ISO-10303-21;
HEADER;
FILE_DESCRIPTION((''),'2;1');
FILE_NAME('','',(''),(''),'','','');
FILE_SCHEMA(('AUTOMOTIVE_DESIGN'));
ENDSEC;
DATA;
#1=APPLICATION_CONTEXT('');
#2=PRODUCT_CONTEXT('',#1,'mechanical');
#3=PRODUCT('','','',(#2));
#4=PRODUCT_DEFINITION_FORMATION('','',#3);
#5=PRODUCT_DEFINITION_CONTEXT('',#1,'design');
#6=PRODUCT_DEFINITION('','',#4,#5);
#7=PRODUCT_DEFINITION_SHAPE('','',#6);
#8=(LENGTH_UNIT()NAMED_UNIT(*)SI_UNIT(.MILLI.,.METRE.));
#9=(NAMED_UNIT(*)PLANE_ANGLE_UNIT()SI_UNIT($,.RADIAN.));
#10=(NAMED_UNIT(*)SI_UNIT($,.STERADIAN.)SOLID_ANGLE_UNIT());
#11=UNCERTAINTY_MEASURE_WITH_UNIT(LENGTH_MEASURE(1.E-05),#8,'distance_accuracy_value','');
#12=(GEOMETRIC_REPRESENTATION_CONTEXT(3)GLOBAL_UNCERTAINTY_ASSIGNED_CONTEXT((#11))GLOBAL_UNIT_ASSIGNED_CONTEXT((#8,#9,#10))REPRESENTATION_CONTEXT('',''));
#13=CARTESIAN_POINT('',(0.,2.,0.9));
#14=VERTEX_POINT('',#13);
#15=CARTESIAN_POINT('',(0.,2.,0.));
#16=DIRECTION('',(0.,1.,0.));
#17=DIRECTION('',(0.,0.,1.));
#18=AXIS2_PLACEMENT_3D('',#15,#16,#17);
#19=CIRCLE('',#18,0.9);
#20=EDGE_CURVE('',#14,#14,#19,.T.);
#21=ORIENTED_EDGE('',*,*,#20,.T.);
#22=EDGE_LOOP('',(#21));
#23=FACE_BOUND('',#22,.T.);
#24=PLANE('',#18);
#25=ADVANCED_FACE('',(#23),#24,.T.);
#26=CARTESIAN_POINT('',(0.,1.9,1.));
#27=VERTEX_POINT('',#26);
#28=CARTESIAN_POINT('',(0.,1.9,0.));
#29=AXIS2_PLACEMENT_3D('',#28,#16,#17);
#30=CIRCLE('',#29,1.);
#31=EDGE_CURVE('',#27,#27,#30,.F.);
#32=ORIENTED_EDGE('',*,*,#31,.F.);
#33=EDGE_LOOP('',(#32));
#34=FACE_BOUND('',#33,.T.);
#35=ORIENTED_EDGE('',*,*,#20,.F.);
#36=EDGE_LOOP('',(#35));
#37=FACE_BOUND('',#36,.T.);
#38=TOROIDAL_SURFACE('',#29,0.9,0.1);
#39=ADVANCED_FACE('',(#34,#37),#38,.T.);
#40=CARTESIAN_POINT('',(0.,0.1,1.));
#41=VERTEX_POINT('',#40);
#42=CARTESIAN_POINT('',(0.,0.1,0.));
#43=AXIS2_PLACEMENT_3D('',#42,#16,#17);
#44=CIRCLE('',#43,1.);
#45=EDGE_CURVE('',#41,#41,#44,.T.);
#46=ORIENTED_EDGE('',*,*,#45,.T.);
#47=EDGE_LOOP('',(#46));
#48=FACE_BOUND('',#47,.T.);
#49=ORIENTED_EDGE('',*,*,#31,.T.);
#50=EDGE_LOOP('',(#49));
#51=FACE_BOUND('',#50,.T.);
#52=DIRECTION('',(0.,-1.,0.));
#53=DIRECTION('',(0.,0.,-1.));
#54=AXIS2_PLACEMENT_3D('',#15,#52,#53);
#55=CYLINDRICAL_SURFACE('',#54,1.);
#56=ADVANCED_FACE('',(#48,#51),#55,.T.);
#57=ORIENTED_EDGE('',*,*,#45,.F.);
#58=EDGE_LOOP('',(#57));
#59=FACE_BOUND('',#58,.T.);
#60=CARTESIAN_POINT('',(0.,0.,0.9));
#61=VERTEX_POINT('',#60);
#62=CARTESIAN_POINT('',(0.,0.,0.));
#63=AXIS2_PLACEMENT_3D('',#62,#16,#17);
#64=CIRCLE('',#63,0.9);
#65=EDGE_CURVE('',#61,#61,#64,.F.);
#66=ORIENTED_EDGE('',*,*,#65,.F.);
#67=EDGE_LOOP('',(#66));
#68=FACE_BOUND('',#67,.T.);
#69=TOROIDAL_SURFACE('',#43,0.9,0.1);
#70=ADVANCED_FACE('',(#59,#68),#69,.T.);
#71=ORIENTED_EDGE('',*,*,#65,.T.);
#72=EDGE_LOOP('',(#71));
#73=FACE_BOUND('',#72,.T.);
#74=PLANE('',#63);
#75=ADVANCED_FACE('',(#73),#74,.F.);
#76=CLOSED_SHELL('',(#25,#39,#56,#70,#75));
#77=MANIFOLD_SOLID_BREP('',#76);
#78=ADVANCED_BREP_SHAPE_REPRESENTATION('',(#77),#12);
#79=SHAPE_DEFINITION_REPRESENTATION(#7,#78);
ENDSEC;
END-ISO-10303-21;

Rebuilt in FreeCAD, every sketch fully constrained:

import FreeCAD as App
import Part
import Sketcher


def edges_at(feature, points):
    """Names of the edges that pass closest to the given points."""
    edges = feature.Shape.Edges
    near = lambda p: min(range(len(edges)), key=lambda i: edges[i].distToShape(Part.Vertex(*p))[0])
    return sorted({f"Edge{near(p) + 1}" for p in points})

doc = App.newDocument("Part")
params = doc.addObject("Spreadsheet::Sheet", "Params")
for row, (alias, value) in enumerate([
    ("sketch1_diameter", "2 mm"),
    ("pad1_length", "2 mm"),
    ("fillet_radius", "0.1 mm"),
], start=1):
    params.set(f"A{row}", alias)
    params.set(f"B{row}", "=" + value)
    params.setAlias(f"B{row}", alias)

body = doc.addObject("PartDesign::Body", "Body")

sketch1 = body.newObject("Sketcher::SketchObject", "Sketch")
sketch1.AttachmentSupport = (doc.getObject("XZ_Plane"), [""])
sketch1.MapMode = "FlatFace"
sketch1.addGeometry(Part.Circle(App.Vector(0, 0, 0), App.Vector(0, 0, 1), 1), False)
sketch1.addConstraint([
    Sketcher.Constraint("Coincident", 0, 3, -1, 1),
    Sketcher.Constraint("Diameter", 0, 2.0),
])
sketch1.setExpression("Constraints[1]", "Params.sketch1_diameter")
pad1 = body.newObject("PartDesign::Pad", "Pad")
pad1.Profile = sketch1
pad1.setExpression("Length", "Params.pad1_length")
pad1.Reversed = True
doc.recompute()

fillet = body.newObject("PartDesign::Fillet", "Fillet")
fillet.Base = (pad1, edges_at(pad1, [(0, 0, -1), (0, 2, -1)]))
fillet.setExpression("Radius", "Params.fillet_radius")

doc.recompute()
